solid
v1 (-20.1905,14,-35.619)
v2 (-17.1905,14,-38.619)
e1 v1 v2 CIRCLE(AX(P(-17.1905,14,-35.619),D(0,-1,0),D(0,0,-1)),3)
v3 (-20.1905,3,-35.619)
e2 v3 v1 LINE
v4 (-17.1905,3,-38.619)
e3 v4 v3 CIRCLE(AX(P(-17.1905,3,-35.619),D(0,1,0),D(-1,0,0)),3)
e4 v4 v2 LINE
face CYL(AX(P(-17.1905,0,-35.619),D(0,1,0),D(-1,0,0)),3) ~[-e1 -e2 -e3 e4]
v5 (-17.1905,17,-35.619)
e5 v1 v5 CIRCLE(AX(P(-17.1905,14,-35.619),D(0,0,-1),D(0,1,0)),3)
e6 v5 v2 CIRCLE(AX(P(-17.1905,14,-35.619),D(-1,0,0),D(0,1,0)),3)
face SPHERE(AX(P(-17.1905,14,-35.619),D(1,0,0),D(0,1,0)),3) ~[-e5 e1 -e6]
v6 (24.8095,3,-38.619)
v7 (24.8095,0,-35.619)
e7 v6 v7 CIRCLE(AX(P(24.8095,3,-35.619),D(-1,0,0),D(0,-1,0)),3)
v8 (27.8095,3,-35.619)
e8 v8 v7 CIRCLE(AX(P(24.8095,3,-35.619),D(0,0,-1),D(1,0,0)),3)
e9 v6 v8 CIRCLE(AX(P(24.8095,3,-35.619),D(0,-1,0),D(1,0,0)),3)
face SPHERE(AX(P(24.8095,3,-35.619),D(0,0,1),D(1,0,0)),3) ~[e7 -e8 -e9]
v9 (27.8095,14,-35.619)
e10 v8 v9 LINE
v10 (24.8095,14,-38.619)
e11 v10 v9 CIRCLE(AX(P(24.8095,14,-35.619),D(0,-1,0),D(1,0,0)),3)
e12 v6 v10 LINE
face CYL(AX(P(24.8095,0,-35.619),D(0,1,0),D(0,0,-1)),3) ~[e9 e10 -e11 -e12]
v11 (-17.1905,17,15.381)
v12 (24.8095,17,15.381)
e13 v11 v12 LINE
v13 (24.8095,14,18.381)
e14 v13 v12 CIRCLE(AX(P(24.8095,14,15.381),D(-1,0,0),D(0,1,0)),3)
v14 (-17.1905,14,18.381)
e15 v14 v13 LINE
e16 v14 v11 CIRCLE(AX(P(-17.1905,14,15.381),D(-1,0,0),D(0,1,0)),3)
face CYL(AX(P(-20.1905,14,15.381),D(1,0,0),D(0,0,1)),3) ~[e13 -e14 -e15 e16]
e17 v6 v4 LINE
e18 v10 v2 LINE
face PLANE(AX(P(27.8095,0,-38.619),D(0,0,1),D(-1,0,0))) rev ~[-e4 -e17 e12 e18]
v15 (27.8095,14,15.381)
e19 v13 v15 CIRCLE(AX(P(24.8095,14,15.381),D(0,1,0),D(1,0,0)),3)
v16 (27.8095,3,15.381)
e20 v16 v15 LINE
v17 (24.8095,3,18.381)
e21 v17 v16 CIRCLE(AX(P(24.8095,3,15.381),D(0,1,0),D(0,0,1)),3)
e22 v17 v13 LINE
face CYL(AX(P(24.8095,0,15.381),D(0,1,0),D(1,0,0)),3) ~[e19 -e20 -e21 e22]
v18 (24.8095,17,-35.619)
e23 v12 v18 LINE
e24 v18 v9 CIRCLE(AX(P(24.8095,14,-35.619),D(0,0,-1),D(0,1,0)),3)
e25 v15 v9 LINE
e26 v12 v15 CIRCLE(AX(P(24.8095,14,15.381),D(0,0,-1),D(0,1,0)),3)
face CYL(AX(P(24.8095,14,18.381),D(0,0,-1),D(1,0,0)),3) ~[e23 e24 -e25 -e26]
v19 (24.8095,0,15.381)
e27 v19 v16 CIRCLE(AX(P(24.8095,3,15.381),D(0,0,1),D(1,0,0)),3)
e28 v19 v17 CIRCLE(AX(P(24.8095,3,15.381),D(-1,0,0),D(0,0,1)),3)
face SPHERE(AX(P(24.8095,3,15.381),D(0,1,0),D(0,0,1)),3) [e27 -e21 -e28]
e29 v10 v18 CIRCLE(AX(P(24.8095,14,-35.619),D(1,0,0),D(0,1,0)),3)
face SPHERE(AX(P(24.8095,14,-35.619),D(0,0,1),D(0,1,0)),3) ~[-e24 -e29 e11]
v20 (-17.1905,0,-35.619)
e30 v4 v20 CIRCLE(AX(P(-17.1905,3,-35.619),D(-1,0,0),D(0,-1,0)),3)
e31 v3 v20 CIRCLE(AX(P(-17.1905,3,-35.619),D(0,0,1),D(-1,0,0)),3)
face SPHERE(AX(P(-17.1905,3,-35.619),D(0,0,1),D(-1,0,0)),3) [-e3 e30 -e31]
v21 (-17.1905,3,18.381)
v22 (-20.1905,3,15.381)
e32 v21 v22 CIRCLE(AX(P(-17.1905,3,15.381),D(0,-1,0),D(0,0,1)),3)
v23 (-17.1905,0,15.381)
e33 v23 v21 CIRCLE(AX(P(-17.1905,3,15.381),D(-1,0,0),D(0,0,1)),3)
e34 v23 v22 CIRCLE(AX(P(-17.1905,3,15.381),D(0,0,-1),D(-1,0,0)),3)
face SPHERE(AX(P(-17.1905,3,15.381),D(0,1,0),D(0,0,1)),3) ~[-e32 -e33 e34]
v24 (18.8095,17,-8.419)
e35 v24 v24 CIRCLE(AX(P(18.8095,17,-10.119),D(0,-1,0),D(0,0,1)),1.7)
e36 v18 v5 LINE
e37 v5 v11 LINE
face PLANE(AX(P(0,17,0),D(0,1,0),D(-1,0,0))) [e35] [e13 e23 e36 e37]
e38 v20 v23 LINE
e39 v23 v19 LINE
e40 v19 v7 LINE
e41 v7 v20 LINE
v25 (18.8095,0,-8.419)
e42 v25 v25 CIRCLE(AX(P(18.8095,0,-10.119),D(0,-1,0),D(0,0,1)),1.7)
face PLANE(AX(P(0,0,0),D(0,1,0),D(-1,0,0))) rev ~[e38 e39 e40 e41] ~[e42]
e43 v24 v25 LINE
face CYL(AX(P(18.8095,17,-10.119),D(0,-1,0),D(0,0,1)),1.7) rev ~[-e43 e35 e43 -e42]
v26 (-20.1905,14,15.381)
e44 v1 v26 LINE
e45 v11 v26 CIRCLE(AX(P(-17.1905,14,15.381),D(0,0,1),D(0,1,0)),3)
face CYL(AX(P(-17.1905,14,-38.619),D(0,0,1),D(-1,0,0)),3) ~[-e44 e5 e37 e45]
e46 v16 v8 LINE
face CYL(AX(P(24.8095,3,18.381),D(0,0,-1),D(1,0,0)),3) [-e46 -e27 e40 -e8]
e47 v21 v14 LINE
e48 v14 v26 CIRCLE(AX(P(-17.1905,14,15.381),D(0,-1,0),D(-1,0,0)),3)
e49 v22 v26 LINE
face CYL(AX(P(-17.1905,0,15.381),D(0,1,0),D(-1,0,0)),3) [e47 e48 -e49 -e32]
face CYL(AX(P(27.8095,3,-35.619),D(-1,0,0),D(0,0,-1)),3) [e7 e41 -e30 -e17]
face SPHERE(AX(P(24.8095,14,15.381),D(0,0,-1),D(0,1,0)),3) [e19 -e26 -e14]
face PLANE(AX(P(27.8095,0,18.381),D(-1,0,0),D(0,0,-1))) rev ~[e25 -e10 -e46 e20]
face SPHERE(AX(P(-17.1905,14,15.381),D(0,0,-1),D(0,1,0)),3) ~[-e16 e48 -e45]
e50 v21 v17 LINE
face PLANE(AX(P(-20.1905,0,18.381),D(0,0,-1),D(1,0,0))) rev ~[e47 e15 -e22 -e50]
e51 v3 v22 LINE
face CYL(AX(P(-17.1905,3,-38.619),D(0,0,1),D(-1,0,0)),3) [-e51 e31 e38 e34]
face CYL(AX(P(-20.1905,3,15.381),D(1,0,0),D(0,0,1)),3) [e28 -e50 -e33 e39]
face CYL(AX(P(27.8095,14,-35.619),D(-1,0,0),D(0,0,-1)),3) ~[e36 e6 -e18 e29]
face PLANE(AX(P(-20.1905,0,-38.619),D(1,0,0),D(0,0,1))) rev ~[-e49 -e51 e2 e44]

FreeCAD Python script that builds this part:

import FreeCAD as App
import Part
import Sketcher

V = App.Vector

doc = App.newDocument("Part")
body = doc.addObject("PartDesign::Body", "Body")

sketch1 = doc.addObject("Sketcher::SketchObject", "Sketch")
body.addObject(sketch1)
sketch1.AttachmentSupport = (doc.XZ_Plane, [""])
sketch1.MapMode = "FlatFace"
sketch1.addGeometry([
    Part.LineSegment(V(-20, -39, 0), V(-20, 18, 0)),
    Part.LineSegment(V(-20, 18, 0), V(28, 18, 0)),
    Part.LineSegment(V(28, 18, 0), V(28, -39, 0)),
    Part.LineSegment(V(28, -39, 0), V(-20, -39, 0)),
], False)
sketch1.addConstraint([
    Sketcher.Constraint("Coincident", 0, 2, 1, 1),
    Sketcher.Constraint("Coincident", 1, 2, 2, 1),
    Sketcher.Constraint("Coincident", 2, 2, 3, 1),
    Sketcher.Constraint("Coincident", 3, 2, 0, 1),
    Sketcher.Constraint("Vertical", 0),
    Sketcher.Constraint("Horizontal", 1),
    Sketcher.Constraint("Vertical", 2),
    Sketcher.Constraint("Horizontal", 3),
    Sketcher.Constraint("DistanceX", 1, 1, 1, 2, 48.0),
    Sketcher.Constraint("DistanceY", 0, 1, 0, 2, 57.0),
    Sketcher.Constraint("DistanceY", -1, 1, 0, 2, 18.381),
    Sketcher.Constraint("DistanceX", 0, 2, -1, 1, 20.1905),
])
pad1 = doc.addObject("PartDesign::Pad", "Pad")
body.addObject(pad1)
pad1.Profile = sketch1
pad1.Length = 17
pad1.Reversed = True
doc.recompute()

fillet = doc.addObject("PartDesign::Fillet", "Fillet")
body.addObject(fillet)
fillet.Base = (pad1, ["Edge1"])
fillet.UseAllEdges = True
fillet.Radius = 3

sketch2 = doc.addObject("Sketcher::SketchObject", "Sketch001")
body.addObject(sketch2)
sketch2.AttachmentSupport = (doc.XZ_Plane, [""])
sketch2.MapMode = "FlatFace"
sketch2.AttachmentOffset = App.Placement(V(0, 0, -17), App.Rotation())
sketch2.addGeometry(Part.Circle(V(18.8, -10.1, 0), V(0, 0, 1), 1.7), False)
sketch2.addConstraint([
    Sketcher.Constraint("Diameter", 0, 3.4),
    Sketcher.Constraint("DistanceY", 0, 3, -1, 1, 10.119),
    Sketcher.Constraint("DistanceX", -1, 1, 0, 3, 18.8095),
])
doc.recompute()
hole = doc.addObject("PartDesign::Hole", "Hole")
body.addObject(hole)
hole.Profile = sketch2
hole.ThreadType = "None"
hole.Diameter = 3.4
hole.DepthType = "Dimension"
hole.Depth = 17
hole.DrillPoint = "Flat"
hole.Reversed = True

doc.recompute()
